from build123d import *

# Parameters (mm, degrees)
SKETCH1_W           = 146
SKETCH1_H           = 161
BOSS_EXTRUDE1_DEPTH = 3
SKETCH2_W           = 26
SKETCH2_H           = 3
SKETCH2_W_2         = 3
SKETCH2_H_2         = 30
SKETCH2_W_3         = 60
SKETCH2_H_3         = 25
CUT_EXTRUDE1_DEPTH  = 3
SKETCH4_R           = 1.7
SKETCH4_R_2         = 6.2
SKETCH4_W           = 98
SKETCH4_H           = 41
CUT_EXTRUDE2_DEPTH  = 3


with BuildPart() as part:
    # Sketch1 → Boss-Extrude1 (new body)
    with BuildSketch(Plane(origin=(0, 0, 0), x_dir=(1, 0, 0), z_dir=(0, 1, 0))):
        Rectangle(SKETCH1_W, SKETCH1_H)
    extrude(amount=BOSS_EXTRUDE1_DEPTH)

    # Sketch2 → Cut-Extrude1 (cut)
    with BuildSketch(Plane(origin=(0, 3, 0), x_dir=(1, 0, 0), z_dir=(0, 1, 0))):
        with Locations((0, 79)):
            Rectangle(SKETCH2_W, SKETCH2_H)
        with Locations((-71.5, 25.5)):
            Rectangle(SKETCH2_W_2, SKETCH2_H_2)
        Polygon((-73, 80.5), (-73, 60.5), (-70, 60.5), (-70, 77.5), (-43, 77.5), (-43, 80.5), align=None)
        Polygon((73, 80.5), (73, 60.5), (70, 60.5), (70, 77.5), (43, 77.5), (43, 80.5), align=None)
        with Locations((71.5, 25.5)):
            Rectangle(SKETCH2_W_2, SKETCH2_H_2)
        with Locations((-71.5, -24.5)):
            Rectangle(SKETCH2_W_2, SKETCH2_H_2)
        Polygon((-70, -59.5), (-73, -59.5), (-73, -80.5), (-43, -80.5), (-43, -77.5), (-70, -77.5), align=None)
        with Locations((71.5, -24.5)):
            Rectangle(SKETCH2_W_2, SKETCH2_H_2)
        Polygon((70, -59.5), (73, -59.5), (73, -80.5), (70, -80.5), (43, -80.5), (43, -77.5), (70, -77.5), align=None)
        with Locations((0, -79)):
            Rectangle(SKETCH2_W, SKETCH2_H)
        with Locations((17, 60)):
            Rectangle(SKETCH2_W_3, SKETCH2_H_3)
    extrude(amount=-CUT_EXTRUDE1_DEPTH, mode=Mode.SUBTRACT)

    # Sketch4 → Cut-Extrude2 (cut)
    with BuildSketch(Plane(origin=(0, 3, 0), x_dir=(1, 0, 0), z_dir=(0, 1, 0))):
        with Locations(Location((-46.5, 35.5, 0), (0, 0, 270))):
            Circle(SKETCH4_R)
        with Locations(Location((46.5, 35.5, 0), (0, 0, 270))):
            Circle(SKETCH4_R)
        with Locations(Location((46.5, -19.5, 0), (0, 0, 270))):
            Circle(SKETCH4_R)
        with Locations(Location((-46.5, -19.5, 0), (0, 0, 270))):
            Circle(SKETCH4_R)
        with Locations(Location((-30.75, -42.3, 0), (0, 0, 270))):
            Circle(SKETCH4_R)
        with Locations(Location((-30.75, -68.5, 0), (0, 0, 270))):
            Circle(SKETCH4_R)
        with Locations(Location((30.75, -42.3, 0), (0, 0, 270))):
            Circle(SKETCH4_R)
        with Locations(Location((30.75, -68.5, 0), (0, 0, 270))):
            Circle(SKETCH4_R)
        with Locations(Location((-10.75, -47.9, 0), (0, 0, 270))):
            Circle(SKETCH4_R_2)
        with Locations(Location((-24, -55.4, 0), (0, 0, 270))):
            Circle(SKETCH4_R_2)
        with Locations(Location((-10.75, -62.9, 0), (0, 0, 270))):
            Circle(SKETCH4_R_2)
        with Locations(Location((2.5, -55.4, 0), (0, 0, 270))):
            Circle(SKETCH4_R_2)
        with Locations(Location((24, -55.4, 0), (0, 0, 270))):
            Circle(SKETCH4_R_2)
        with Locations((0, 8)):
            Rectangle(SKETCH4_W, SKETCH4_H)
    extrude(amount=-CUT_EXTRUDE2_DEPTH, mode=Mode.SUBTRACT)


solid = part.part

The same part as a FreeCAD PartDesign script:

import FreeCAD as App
import Part
import Sketcher

V = App.Vector

doc = App.newDocument("Part")
body = doc.addObject("PartDesign::Body", "Body")

# Sketch on XZ plane
sketch1 = body.newObject("Sketcher::SketchObject", "Sketch")
sketch1.AttachmentSupport = (doc.getObject("XZ_Plane"), [""])
sketch1.MapMode = "FlatFace"
sketch1.addGeometry([
    Part.LineSegment(V(-73, -80, 0), V(-73, 80, 0)),
    Part.LineSegment(V(-73, 80, 0), V(73, 80, 0)),
    Part.LineSegment(V(73, 80, 0), V(73, -80, 0)),
    Part.LineSegment(V(73, -80, 0), V(-73, -80, 0)),
], False)
sketch1.addConstraint([
    Sketcher.Constraint("Coincident", 0, 2, 1, 1),
    Sketcher.Constraint("Coincident", 1, 2, 2, 1),
    Sketcher.Constraint("Coincident", 2, 2, 3, 1),
    Sketcher.Constraint("Coincident", 3, 2, 0, 1),
    Sketcher.Constraint("Vertical", 0),
    Sketcher.Constraint("Horizontal", 1),
    Sketcher.Constraint("Vertical", 2),
    Sketcher.Constraint("Horizontal", 3),
    Sketcher.Constraint("Symmetric", 0, 2, 2, 2, -1, 1),
    Sketcher.Constraint("DistanceX", 1, 1, 1, 2, 146.0),
    Sketcher.Constraint("DistanceY", 0, 1, 0, 2, 161.0),
])
pad1 = body.newObject("PartDesign::Pad", "Pad")
pad1.Profile = sketch1
pad1.Length = 3
pad1.Reversed = True

# Sketch on XZ plane
sketch2 = body.newObject("Sketcher::SketchObject", "Sketch001")
sketch2.AttachmentSupport = (doc.getObject("XZ_Plane"), [""])
sketch2.MapMode = "FlatFace"
sketch2.AttachmentOffset = App.Placement(V(0, 0, -3), App.Rotation())
sketch2.addGeometry([
    Part.LineSegment(V(-13, -80.5, 0), V(-13, -77.5, 0)),  # 0
    Part.LineSegment(V(-13, -77.5, 0), V(13, -77.5, 0)),  # 1
    Part.LineSegment(V(13, -77.5, 0), V(13, -80.5, 0)),  # 2
    Part.LineSegment(V(13, -80.5, 0), V(-13, -80.5, 0)),  # 3
    Part.LineSegment(V(-73, -40.5, 0), V(-73, -10.5, 0)),  # 4
    Part.LineSegment(V(-73, -10.5, 0), V(-70, -10.5, 0)),  # 5
    Part.LineSegment(V(-70, -10.5, 0), V(-70, -40.5, 0)),  # 6
    Part.LineSegment(V(-70, -40.5, 0), V(-73, -40.5, 0)),  # 7
    Part.LineSegment(V(-73, -80.5, 0), V(-73, -60.5, 0)),  # 8
    Part.LineSegment(V(-73, -60.5, 0), V(-70, -60.5, 0)),  # 9
    Part.LineSegment(V(-70, -60.5, 0), V(-70, -77.5, 0)),  # 10
    Part.LineSegment(V(-70, -77.5, 0), V(-43, -77.5, 0)),  # 11
    Part.LineSegment(V(-43, -77.5, 0), V(-43, -80.5, 0)),  # 12
    Part.LineSegment(V(-43, -80.5, 0), V(-73, -80.5, 0)),  # 13
    Part.LineSegment(V(73, -60.5, 0), V(73, -80.5, 0)),  # 14
    Part.LineSegment(V(73, -80.5, 0), V(43, -80.5, 0)),  # 15
    Part.LineSegment(V(43, -80.5, 0), V(43, -77.5, 0)),  # 16
    Part.LineSegment(V(43, -77.5, 0), V(70, -77.5, 0)),  # 17
    Part.LineSegment(V(70, -77.5, 0), V(70, -60.5, 0)),  # 18
    Part.LineSegment(V(70, -60.5, 0), V(73, -60.5, 0)),  # 19
    Part.LineSegment(V(70, -40.5, 0), V(70, -10.5, 0)),  # 20
    Part.LineSegment(V(70, -10.5, 0), V(73, -10.5, 0)),  # 21
    Part.LineSegment(V(73, -10.5, 0), V(73, -40.5, 0)),  # 22
    Part.LineSegment(V(73, -40.5, 0), V(70, -40.5, 0)),  # 23
    Part.LineSegment(V(-73, 9.5, 0), V(-73, 39.5, 0)),  # 24
    Part.LineSegment(V(-73, 39.5, 0), V(-70, 39.5, 0)),  # 25
    Part.LineSegment(V(-70, 39.5, 0), V(-70, 9.5, 0)),  # 26
    Part.LineSegment(V(-70, 9.5, 0), V(-73, 9.5, 0)),  # 27
    Part.LineSegment(V(-70, 59.5, 0), V(-73, 59.5, 0)),  # 28
    Part.LineSegment(V(-73, 59.5, 0), V(-73, 80.5, 0)),  # 29
    Part.LineSegment(V(-73, 80.5, 0), V(-43, 80.5, 0)),  # 30
    Part.LineSegment(V(-43, 80.5, 0), V(-43, 77.5, 0)),  # 31
    Part.LineSegment(V(-43, 77.5, 0), V(-70, 77.5, 0)),  # 32
    Part.LineSegment(V(-70, 77.5, 0), V(-70, 59.5, 0)),  # 33
    Part.LineSegment(V(70, 9.5, 0), V(70, 39.5, 0)),  # 34
    Part.LineSegment(V(70, 39.5, 0), V(73, 39.5, 0)),  # 35
    Part.LineSegment(V(73, 39.5, 0), V(73, 9.5, 0)),  # 36
    Part.LineSegment(V(73, 9.5, 0), V(70, 9.5, 0)),  # 37
    Part.LineSegment(V(73, 59.5, 0), V(70, 59.5, 0)),  # 38
    Part.LineSegment(V(70, 59.5, 0), V(70, 77.5, 0)),  # 39
    Part.LineSegment(V(70, 77.5, 0), V(43, 77.5, 0)),  # 40
    Part.LineSegment(V(43, 77.5, 0), V(43, 80.5, 0)),  # 41
    Part.LineSegment(V(43, 80.5, 0), V(73, 80.5, 0)),  # 42
    Part.LineSegment(V(73, 80.5, 0), V(73, 59.5, 0)),  # 43
    Part.LineSegment(V(-13, 77.5, 0), V(-13, 80.5, 0)),  # 44
    Part.LineSegment(V(-13, 80.5, 0), V(13, 80.5, 0)),  # 45
    Part.LineSegment(V(13, 80.5, 0), V(13, 77.5, 0)),  # 46
    Part.LineSegment(V(13, 77.5, 0), V(-13, 77.5, 0)),  # 47
    Part.LineSegment(V(-13, -72.5, 0), V(-13, -47.5, 0)),  # 48
    Part.LineSegment(V(-13, -47.5, 0), V(47, -47.5, 0)),  # 49
    Part.LineSegment(V(47, -47.5, 0), V(47, -72.5, 0)),  # 50
    Part.LineSegment(V(47, -72.5, 0), V(-13, -72.5, 0)),  # 51
], False)
sketch2.addConstraint([
    Sketcher.Constraint("Coincident", 0, 2, 1, 1),
    Sketcher.Constraint("Coincident", 1, 2, 2, 1),
    Sketcher.Constraint("Coincident", 2, 2, 3, 1),
    Sketcher.Constraint("Coincident", 3, 2, 0, 1),
    Sketcher.Constraint("Coincident", 4, 2, 5, 1),
    Sketcher.Constraint("Coincident", 5, 2, 6, 1),
    Sketcher.Constraint("Coincident", 6, 2, 7, 1),
    Sketcher.Constraint("Coincident", 7, 2, 4, 1),
    Sketcher.Constraint("Coincident", 8, 2, 9, 1),
    Sketcher.Constraint("Coincident", 9, 2, 10, 1),
    Sketcher.Constraint("Coincident", 10, 2, 11, 1),
    Sketcher.Constraint("Coincident", 11, 2, 12, 1),
    Sketcher.Constraint("Coincident", 12, 2, 13, 1),
    Sketcher.Constraint("Coincident", 13, 2, 8, 1),
    Sketcher.Constraint("Coincident", 14, 2, 15, 1),
    Sketcher.Constraint("Coincident", 15, 2, 16, 1),
    Sketcher.Constraint("Coincident", 16, 2, 17, 1),
    Sketcher.Constraint("Coincident", 17, 2, 18, 1),
    Sketcher.Constraint("Coincident", 18, 2, 19, 1),
    Sketcher.Constraint("Coincident", 19, 2, 14, 1),
    Sketcher.Constraint("Coincident", 20, 2, 21, 1),
    Sketcher.Constraint("Coincident", 21, 2, 22, 1),
    Sketcher.Constraint("Coincident", 22, 2, 23, 1),
    Sketcher.Constraint("Coincident", 23, 2, 20, 1),
    Sketcher.Constraint("Coincident", 24, 2, 25, 1),
    Sketcher.Constraint("Coincident", 25, 2, 26, 1),
    Sketcher.Constraint("Coincident", 26, 2, 27, 1),
    Sketcher.Constraint("Coincident", 27, 2, 24, 1),
    Sketcher.Constraint("Coincident", 28, 2, 29, 1),
    Sketcher.Constraint("Coincident", 29, 2, 30, 1),
    Sketcher.Constraint("Coincident", 30, 2, 31, 1),
    Sketcher.Constraint("Coincident", 31, 2, 32, 1),
    Sketcher.Constraint("Coincident", 32, 2, 33, 1),
    Sketcher.Constraint("Coincident", 33, 2, 28, 1),
    Sketcher.Constraint("Coincident", 34, 2, 35, 1),
    Sketcher.Constraint("Coincident", 35, 2, 36, 1),
    Sketcher.Constraint("Coincident", 36, 2, 37, 1),
    Sketcher.Constraint("Coincident", 37, 2, 34, 1),
    Sketcher.Constraint("Coincident", 38, 2, 39, 1),
    Sketcher.Constraint("Coincident", 39, 2, 40, 1),
    Sketcher.Constraint("Coincident", 40, 2, 41, 1),
    Sketcher.Constraint("Coincident", 41, 2, 42, 1),
    Sketcher.Constraint("Coincident", 42, 2, 43, 1),
    Sketcher.Constraint("Coincident", 43, 2, 38, 1),
    Sketcher.Constraint("Coincident", 44, 2, 45, 1),
    Sketcher.Constraint("Coincident", 45, 2, 46, 1),
    Sketcher.Constraint("Coincident", 46, 2, 47, 1),
    Sketcher.Constraint("Coincident", 47, 2, 44, 1),
    Sketcher.Constraint("Coincident", 48, 2, 49, 1),
    Sketcher.Constraint("Coincident", 49, 2, 50, 1),
    Sketcher.Constraint("Coincident", 50, 2, 51, 1),
    Sketcher.Constraint("Coincident", 51, 2, 48, 1),
    Sketcher.Constraint("Vertical", 0),
    Sketcher.Constraint("Horizontal", 1),
    Sketcher.Constraint("Vertical", 2),
    Sketcher.Constraint("Horizontal", 3),
    Sketcher.Constraint("Vertical", 4),
    Sketcher.Constraint("Horizontal", 5),
    Sketcher.Constraint("Vertical", 6),
    Sketcher.Constraint("Horizontal", 7),
    Sketcher.Constraint("Vertical", 8),
    Sketcher.Constraint("Horizontal", 9),
    Sketcher.Constraint("Vertical", 10),
    Sketcher.Constraint("Horizontal", 11),
    Sketcher.Constraint("Vertical", 12),
    Sketcher.Constraint("Horizontal", 13),
    Sketcher.Constraint("Vertical", 14),
    Sketcher.Constraint("Horizontal", 15),
    Sketcher.Constraint("Vertical", 16),
    Sketcher.Constraint("Horizontal", 17),
    Sketcher.Constraint("Vertical", 18),
    Sketcher.Constraint("Horizontal", 19),
    Sketcher.Constraint("Vertical", 20),
    Sketcher.Constraint("Horizontal", 21),
    Sketcher.Constraint("Vertical", 22),
    Sketcher.Constraint("Horizontal", 23),
    Sketcher.Constraint("Vertical", 24),
    Sketcher.Constraint("Horizontal", 25),
    Sketcher.Constraint("Vertical", 26),
    Sketcher.Constraint("Horizontal", 27),
    Sketcher.Constraint("Horizontal", 28),
    Sketcher.Constraint("Vertical", 29),
    Sketcher.Constraint("Horizontal", 30),
    Sketcher.Constraint("Vertical", 31),
    Sketcher.Constraint("Horizontal", 32),
    Sketcher.Constraint("Vertical", 33),
    Sketcher.Constraint("Vertical", 34),
    Sketcher.Constraint("Horizontal", 35),
    Sketcher.Constraint("Vertical", 36),
    Sketcher.Constraint("Horizontal", 37),
    Sketcher.Constraint("Horizontal", 38),
    Sketcher.Constraint("Vertical", 39),
    Sketcher.Constraint("Horizontal", 40),
    Sketcher.Constraint("Vertical", 41),
    Sketcher.Constraint("Horizontal", 42),
    Sketcher.Constraint("Vertical", 43),
    Sketcher.Constraint("Vertical", 44),
    Sketcher.Constraint("Horizontal", 45),
    Sketcher.Constraint("Vertical", 46),
    Sketcher.Constraint("Horizontal", 47),
    Sketcher.Constraint("Vertical", 48),
    Sketcher.Constraint("Horizontal", 49),
    Sketcher.Constraint("Vertical", 50),
    Sketcher.Constraint("Horizontal", 51),
    Sketcher.Constraint("Symmetric", 14, 2, 29, 2, -1, 1),
    Sketcher.Constraint("Symmetric", 16, 2, 31, 2, -1, 1),
    Sketcher.Constraint("Symmetric", 10, 2, 39, 2, -1, 1),
    Sketcher.Constraint("Symmetric", 12, 2, 41, 2, -1, 1),
    Sketcher.Constraint("Symmetric", 2, 2, 44, 2, -1, 1),
    Sketcher.Constraint("Symmetric", 0, 2, 46, 2, -1, 1),
    Sketcher.Constraint("Symmetric", 13, 2, 14, 2, -2),
    Sketcher.Constraint("Symmetric", 11, 2, 16, 2, -2),
    Sketcher.Constraint("Symmetric", 9, 2, 18, 2, -2),
    Sketcher.Constraint("Symmetric", 5, 2, 20, 2, -2),
    Sketcher.Constraint("Symmetric", 7, 2, 22, 2, -2),
    Sketcher.Constraint("Symmetric", 25, 2, 34, 2, -2),
    Sketcher.Constraint("Symmetric", 27, 2, 36, 2, -2),
    Sketcher.Constraint("Symmetric", 33, 2, 38, 2, -2),
    Sketcher.Constraint("Horizontal", 1, 2, 10, 2),
    Sketcher.Constraint("Horizontal", 3, 2, 12, 2),
    Sketcher.Constraint("Vertical", 7, 2, 8, 2),
    Sketcher.Constraint("Vertical", 6, 2, 9, 2),
    Sketcher.Constraint("Vertical", 13, 2, 24, 2),
    Sketcher.Constraint("Vertical", 10, 2, 25, 2),
    Sketcher.Constraint("Vertical", 36, 2, 42, 2),
    Sketcher.Constraint("Vertical", 3, 2, 44, 2),
    Sketcher.Constraint("Vertical", 47, 2, 48, 2),
    Sketcher.Constraint("Equal", 38, 0),
    Sketcher.Constraint("Equal", 42, 4),
    Sketcher.Constraint("Equal", 22, 24),
    Sketcher.Constraint("DistanceX", 1, 1, 1, 2, 26.0),
    Sketcher.Constraint("DistanceX", 5, 1, 5, 2, 3.0),
    Sketcher.Constraint("DistanceX", 11, 1, 11, 2, 27.0),
    Sketcher.Constraint("DistanceX", 49, 1, 49, 2, 60.0),
    Sketcher.Constraint("DistanceY", 8, 1, 8, 2, 20.0),
    Sketcher.Constraint("DistanceY", 29, 1, 29, 2, 21.0),
    Sketcher.Constraint("DistanceY", 48, 1, 48, 2, 25.0),
    Sketcher.Constraint("DistanceX", 4, 2, -1, 1, 73.0),
    Sketcher.Constraint("DistanceY", 0, 2, 4, 2, 67.0),
    Sketcher.Constraint("DistanceY", 4, 2, 24, 2, 50.0),
    Sketcher.Constraint("DistanceY", 24, 2, 28, 2, 20.0),
    Sketcher.Constraint("DistanceY", 0, 2, 48, 2, 30.0),
])
pocket1 = body.newObject("PartDesign::Pocket", "Pocket")
pocket1.Profile = sketch2
pocket1.Length = 3
pocket1.Reversed = True

# Sketch on XZ plane
sketch3 = body.newObject("Sketcher::SketchObject", "Sketch002")
sketch3.AttachmentSupport = (doc.getObject("XZ_Plane"), [""])
sketch3.MapMode = "FlatFace"
sketch3.AttachmentOffset = App.Placement(V(0, 0, -3), App.Rotation())
sketch3.addGeometry([
    Part.Circle(V(-46.5, -35.5, 0), V(0, 0, 1), 1.7),  # 0
    Part.Circle(V(46.5, -35.5, 0), V(0, 0, 1), 1.7),  # 1
    Part.Circle(V(46.5, 19.5, 0), V(0, 0, 1), 1.7),  # 2
    Part.Circle(V(-46.5, 19.5, 0), V(0, 0, 1), 1.7),  # 3
    Part.Circle(V(-30.8, 42.3, 0), V(0, 0, 1), 1.7),  # 4
    Part.Circle(V(-30.8, 68.5, 0), V(0, 0, 1), 1.7),  # 5
    Part.Circle(V(30.8, 42.3, 0), V(0, 0, 1), 1.7),  # 6
    Part.Circle(V(30.8, 68.5, 0), V(0, 0, 1), 1.7),  # 7
    Part.Circle(V(-10.8, 47.9, 0), V(0, 0, 1), 6.2),  # 8
    Part.Circle(V(-24, 55.4, 0), V(0, 0, 1), 6.2),  # 9
    Part.Circle(V(-10.8, 62.9, 0), V(0, 0, 1), 6.2),  # 10
    Part.Circle(V(2.5, 55.4, 0), V(0, 0, 1), 6.2),  # 11
    Part.Circle(V(24, 55.4, 0), V(0, 0, 1), 6.2),  # 12
    Part.LineSegment(V(-49, -28.5, 0), V(-49, 12.5, 0)),  # 13
    Part.LineSegment(V(-49, 12.5, 0), V(49, 12.5, 0)),  # 14
    Part.LineSegment(V(49, 12.5, 0), V(49, -28.5, 0)),  # 15
    Part.LineSegment(V(49, -28.5, 0), V(-49, -28.5, 0)),  # 16
], False)
sketch3.addConstraint([
    Sketcher.Constraint("Coincident", 13, 2, 14, 1),
    Sketcher.Constraint("Coincident", 14, 2, 15, 1),
    Sketcher.Constraint("Coincident", 15, 2, 16, 1),
    Sketcher.Constraint("Coincident", 16, 2, 13, 1),
    Sketcher.Constraint("Vertical", 13),
    Sketcher.Constraint("Horizontal", 14),
    Sketcher.Constraint("Vertical", 15),
    Sketcher.Constraint("Horizontal", 16),
    Sketcher.Constraint("Equal", 0, 1),
    Sketcher.Constraint("Equal", 1, 2),
    Sketcher.Constraint("Equal", 2, 3),
    Sketcher.Constraint("Equal", 3, 4),
    Sketcher.Constraint("Equal", 4, 5),
    Sketcher.Constraint("Equal", 5, 6),
    Sketcher.Constraint("Equal", 6, 7),
    Sketcher.Constraint("Equal", 8, 9),
    Sketcher.Constraint("Equal", 9, 10),
    Sketcher.Constraint("Equal", 10, 11),
    Sketcher.Constraint("Equal", 11, 12),
    Sketcher.Constraint("Symmetric", 0, 3, 1, 3, -2),
    Sketcher.Constraint("Symmetric", 2, 3, 3, 3, -2),
    Sketcher.Constraint("Symmetric", 4, 3, 6, 3, -2),
    Sketcher.Constraint("Symmetric", 5, 3, 7, 3, -2),
    Sketcher.Constraint("Symmetric", 9, 3, 12, 3, -2),
    Sketcher.Constraint("Horizontal", 9, 3, 11, 3),
    Sketcher.Constraint("Vertical", 1, 3, 2, 3),
    Sketcher.Constraint("Vertical", 4, 3, 5, 3),
    Sketcher.Constraint("Vertical", 8, 3, 10, 3),
    Sketcher.Constraint("Diameter", 0, 3.4),
    Sketcher.Constraint("Diameter", 8, 12.4),
    Sketcher.Constraint("DistanceX", 14, 1, 14, 2, 98.0),
    Sketcher.Constraint("DistanceY", 13, 1, 13, 2, 41.0),
    Sketcher.Constraint("DistanceX", 9, 3, -1, 1, 24.0),
    Sketcher.Constraint("DistanceX", 13, 2, -1, 1, 49.0),
    Sketcher.Constraint("DistanceX", 0, 3, 1, 3, 93.0),
    Sketcher.Constraint("DistanceY", 1, 3, 2, 3, 55.0),
    Sketcher.Constraint("DistanceY", 3, 3, 5, 3, 49.0),
    Sketcher.Constraint("DistanceX", 4, 3, 8, 3, 20.0),
    Sketcher.Constraint("DistanceY", 8, 3, 10, 3, 15.0),
    Sketcher.Constraint("DistanceY", 13, 2, 3, 3, 7.0),
    Sketcher.Constraint("DistanceY", 0, 3, -1, 1, 35.5),
    Sketcher.Constraint("DistanceY", -1, 1, 4, 3, 42.3),
    Sketcher.Constraint("DistanceY", -1, 1, 8, 3, 47.9),
    Sketcher.Constraint("DistanceY", -1, 1, 9, 3, 55.4),
    Sketcher.Constraint("DistanceX", -1, 1, 11, 3, 2.5),
    Sketcher.Constraint("DistanceX", 4, 3, 6, 3, 61.5),
])
pocket2 = body.newObject("PartDesign::Pocket", "Pocket001")
pocket2.Profile = sketch3
pocket2.Length = 3
pocket2.Reversed = True

doc.recompute()
